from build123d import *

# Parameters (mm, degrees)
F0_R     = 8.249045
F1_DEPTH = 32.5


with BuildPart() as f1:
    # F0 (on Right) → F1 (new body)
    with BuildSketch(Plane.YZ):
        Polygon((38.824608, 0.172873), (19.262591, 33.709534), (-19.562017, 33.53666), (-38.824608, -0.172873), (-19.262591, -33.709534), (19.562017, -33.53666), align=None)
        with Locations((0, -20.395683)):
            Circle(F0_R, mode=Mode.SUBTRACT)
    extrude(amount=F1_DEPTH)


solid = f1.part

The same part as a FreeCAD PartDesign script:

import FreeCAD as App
import Part
import Sketcher


def add_polygon(sketch, points):
    """Adds a closed chain of lines whose ends are joined by coincident constraints."""
    first, n = sketch.GeometryCount, len(points)
    for a, b in zip(points, points[1:] + points[:1]):
        sketch.addGeometry(Part.LineSegment(App.Vector(*a, 0), App.Vector(*b, 0)), False)
    for i in range(n):
        sketch.addConstraint(Sketcher.Constraint("Coincident", first + i, 2, first + (i + 1) % n, 1))

doc = App.newDocument("Part")
body = doc.addObject("PartDesign::Body", "Body")

# Sketch on YZ plane
sketch1 = body.newObject("Sketcher::SketchObject", "Sketch")
sketch1.AttachmentSupport = (doc.getObject("YZ_Plane"), [""])
sketch1.MapMode = "FlatFace"
add_polygon(sketch1, [(39, 0), (19, 34), (-20, 34), (-39, 0), (-19, -34), (20, -34)])  # lines 0-5
sketch1.addGeometry(Part.Circle(App.Vector(0, -20, 0), App.Vector(0, 0, 1), 8), False)  # 6
sketch1.addConstraint([
    Sketcher.Constraint("Symmetric", 0, 2, 3, 2, -1, 1),
    Sketcher.Constraint("Symmetric", 1, 2, 4, 2, -1, 1),
    Sketcher.Constraint("Symmetric", 2, 2, 5, 2, -1, 1),
    Sketcher.Constraint("PointOnObject", 6, 3, -2),
    Sketcher.Constraint("Equal", 0, 1),
    Sketcher.Constraint("Equal", 1, 2),
    Sketcher.Constraint("Diameter", 6, 16.49809),
    Sketcher.Constraint("DistanceX", 2, 2, 0, 2, 58.087199),
    Sketcher.Constraint("DistanceX", -1, 1, 0, 2, 19.262591),
    Sketcher.Constraint("DistanceY", -1, 1, 1, 2, 33.53666),
    Sketcher.Constraint("DistanceX", 2, 2, 1, 2, 19.262591),
    Sketcher.Constraint("DistanceY", 6, 3, 2, 2, 20.22281),
])
pad1 = body.newObject("PartDesign::Pad", "Pad")
pad1.Profile = sketch1
pad1.Length = 32.5

doc.recompute()
